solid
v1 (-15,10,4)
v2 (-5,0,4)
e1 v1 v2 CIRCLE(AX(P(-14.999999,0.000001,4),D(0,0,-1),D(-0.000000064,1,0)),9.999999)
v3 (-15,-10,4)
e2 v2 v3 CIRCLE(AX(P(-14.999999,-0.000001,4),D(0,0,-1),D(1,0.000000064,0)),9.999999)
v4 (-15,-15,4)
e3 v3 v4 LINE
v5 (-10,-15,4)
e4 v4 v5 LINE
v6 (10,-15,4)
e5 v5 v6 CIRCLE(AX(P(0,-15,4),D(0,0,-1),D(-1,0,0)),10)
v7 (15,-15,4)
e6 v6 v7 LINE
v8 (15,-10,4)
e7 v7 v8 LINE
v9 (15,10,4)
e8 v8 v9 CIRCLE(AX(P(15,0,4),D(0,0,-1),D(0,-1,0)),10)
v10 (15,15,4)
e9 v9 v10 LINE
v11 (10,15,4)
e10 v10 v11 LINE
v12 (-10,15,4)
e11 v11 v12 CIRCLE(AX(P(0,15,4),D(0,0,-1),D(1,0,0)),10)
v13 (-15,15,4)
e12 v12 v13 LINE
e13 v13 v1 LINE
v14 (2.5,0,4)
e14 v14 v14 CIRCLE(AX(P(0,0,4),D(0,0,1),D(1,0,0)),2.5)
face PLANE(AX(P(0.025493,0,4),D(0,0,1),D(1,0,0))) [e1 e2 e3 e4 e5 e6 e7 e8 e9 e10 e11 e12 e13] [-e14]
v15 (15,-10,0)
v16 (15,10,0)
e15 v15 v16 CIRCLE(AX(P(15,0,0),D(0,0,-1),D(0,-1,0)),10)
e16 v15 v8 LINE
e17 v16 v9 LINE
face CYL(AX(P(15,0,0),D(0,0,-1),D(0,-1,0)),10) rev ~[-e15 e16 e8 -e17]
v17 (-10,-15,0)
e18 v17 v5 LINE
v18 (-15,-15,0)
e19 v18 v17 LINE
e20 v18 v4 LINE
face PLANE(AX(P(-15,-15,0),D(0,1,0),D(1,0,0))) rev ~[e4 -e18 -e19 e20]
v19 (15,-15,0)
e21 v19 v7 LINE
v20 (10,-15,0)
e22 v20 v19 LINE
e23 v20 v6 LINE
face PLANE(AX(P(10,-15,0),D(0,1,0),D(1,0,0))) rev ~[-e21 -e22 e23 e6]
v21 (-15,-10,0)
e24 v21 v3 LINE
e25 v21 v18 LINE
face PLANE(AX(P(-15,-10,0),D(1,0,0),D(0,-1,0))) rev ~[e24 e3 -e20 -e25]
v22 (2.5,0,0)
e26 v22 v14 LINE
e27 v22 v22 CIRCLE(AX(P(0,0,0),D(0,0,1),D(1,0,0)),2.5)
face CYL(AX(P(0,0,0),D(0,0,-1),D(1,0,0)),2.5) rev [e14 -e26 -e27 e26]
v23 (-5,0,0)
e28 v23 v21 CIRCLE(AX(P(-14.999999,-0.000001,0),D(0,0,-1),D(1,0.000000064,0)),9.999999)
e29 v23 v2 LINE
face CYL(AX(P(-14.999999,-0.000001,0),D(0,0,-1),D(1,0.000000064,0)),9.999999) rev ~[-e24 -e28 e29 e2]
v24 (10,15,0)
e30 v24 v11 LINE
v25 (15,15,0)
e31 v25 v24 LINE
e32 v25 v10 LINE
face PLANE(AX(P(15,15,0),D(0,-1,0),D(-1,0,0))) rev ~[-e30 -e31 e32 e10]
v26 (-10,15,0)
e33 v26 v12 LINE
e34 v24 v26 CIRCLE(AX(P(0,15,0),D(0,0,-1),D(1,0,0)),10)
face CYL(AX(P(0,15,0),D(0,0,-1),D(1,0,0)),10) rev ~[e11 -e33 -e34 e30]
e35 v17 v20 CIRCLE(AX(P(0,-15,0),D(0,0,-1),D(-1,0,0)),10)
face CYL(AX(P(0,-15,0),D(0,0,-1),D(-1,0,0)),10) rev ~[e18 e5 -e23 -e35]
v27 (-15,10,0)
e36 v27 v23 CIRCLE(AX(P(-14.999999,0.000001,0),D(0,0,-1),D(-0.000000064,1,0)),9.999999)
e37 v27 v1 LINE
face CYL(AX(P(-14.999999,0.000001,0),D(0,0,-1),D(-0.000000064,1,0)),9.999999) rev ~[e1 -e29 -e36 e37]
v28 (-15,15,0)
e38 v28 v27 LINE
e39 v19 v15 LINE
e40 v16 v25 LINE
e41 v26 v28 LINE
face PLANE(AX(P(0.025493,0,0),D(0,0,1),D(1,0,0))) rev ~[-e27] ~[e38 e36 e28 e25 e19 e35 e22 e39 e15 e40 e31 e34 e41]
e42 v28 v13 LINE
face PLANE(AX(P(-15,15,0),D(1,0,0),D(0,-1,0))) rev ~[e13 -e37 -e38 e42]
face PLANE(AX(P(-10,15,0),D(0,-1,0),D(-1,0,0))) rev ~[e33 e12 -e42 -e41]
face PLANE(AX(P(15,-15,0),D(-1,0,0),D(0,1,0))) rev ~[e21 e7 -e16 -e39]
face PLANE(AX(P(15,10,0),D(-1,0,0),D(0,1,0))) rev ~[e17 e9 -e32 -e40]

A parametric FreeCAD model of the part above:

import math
import FreeCAD as App
import Part
import Sketcher
Q = App.Units.Quantity

doc = App.newDocument("Part")
body = doc.addObject("PartDesign::Body", "Body")

sketch1 = doc.addObject("Sketcher::SketchObject", "Sketch")
body.addObject(sketch1)
sketch1.AttachmentSupport = (doc.XY_Plane, [""])
sketch1.MapMode = "FlatFace"
sketch1.addGeometry(Part.LineSegment(App.Vector(15, 10, 0), App.Vector(15, 15, 0)), False)
sketch1.addGeometry(Part.LineSegment(App.Vector(15, 15, 0), App.Vector(10, 15, 0)), False)
sketch1.addGeometry(Part.ArcOfCircle(Part.Circle(App.Vector(0, 15, 0), App.Vector(0, 0, 1), 10), math.radians(180), math.radians(360)), False)
sketch1.addGeometry(Part.LineSegment(App.Vector(-10, 15, 0), App.Vector(-15, 15, 0)), False)
sketch1.addGeometry(Part.LineSegment(App.Vector(-15, 15, 0), App.Vector(-15, 10, 0)), False)
sketch1.addGeometry(Part.ArcOfCircle(Part.Circle(App.Vector(-15, 0, 0), App.Vector(0, 0, 1), 10), math.radians(0), math.radians(90)), False)
sketch1.addGeometry(Part.ArcOfCircle(Part.Circle(App.Vector(-15, 0, 0), App.Vector(0, 0, 1), 10), math.radians(-90), math.radians(0)), False)
sketch1.addGeometry(Part.LineSegment(App.Vector(-15, -10, 0), App.Vector(-15, -15, 0)), False)
sketch1.addGeometry(Part.LineSegment(App.Vector(-15, -15, 0), App.Vector(-10, -15, 0)), False)
sketch1.addGeometry(Part.ArcOfCircle(Part.Circle(App.Vector(0, -15, 0), App.Vector(0, 0, 1), 10), math.radians(0), math.radians(180)), False)
sketch1.addGeometry(Part.LineSegment(App.Vector(10, -15, 0), App.Vector(15, -15, 0)), False)
sketch1.addGeometry(Part.LineSegment(App.Vector(15, -15, 0), App.Vector(15, -10, 0)), False)
sketch1.addGeometry(Part.ArcOfCircle(Part.Circle(App.Vector(15, 0, 0), App.Vector(0, 0, 1), 10), math.radians(90), math.radians(270)), False)
sketch1.addGeometry(Part.Circle(App.Vector(0, 0, 0), App.Vector(0, 0, 1), 2.5), False)
sketch1.addConstraint(Sketcher.Constraint("Coincident", 0, 2, 1, 1))
sketch1.addConstraint(Sketcher.Constraint("Coincident", 1, 2, 2, 2))
sketch1.addConstraint(Sketcher.Constraint("Coincident", 2, 1, 3, 1))
sketch1.addConstraint(Sketcher.Constraint("Coincident", 3, 2, 4, 1))
sketch1.addConstraint(Sketcher.Constraint("Coincident", 4, 2, 5, 2))
sketch1.addConstraint(Sketcher.Constraint("Tangent", 5, 1, 6, 2))
sketch1.addConstraint(Sketcher.Constraint("Coincident", 6, 1, 7, 1))
sketch1.addConstraint(Sketcher.Constraint("Coincident", 7, 2, 8, 1))
sketch1.addConstraint(Sketcher.Constraint("Coincident", 8, 2, 9, 2))
sketch1.addConstraint(Sketcher.Constraint("Coincident", 9, 1, 10, 1))
sketch1.addConstraint(Sketcher.Constraint("Coincident", 10, 2, 11, 1))
sketch1.addConstraint(Sketcher.Constraint("Coincident", 11, 2, 12, 2))
sketch1.addConstraint(Sketcher.Constraint("Coincident", 12, 1, 0, 1))
sketch1.addConstraint(Sketcher.Constraint("Vertical", 0))
sketch1.addConstraint(Sketcher.Constraint("Horizontal", 1))
sketch1.addConstraint(Sketcher.Constraint("Horizontal", 3))
sketch1.addConstraint(Sketcher.Constraint("Vertical", 4))
sketch1.addConstraint(Sketcher.Constraint("Vertical", 7))
sketch1.addConstraint(Sketcher.Constraint("Horizontal", 8))
sketch1.addConstraint(Sketcher.Constraint("Horizontal", 10))
sketch1.addConstraint(Sketcher.Constraint("Vertical", 11))
sketch1.addConstraint(Sketcher.Constraint("Coincident", 13, 3, -1, 1))
sketch1.addConstraint(Sketcher.Constraint("Equal", 2, 5))
sketch1.addConstraint(Sketcher.Constraint("Equal", 5, 6))
sketch1.addConstraint(Sketcher.Constraint("Equal", 6, 9))
sketch1.addConstraint(Sketcher.Constraint("Equal", 9, 12))
sketch1.addConstraint(Sketcher.Constraint("Symmetric", 2, 3, 9, 3, -1, 1))
sketch1.addConstraint(Sketcher.Constraint("Symmetric", 5, 3, 12, 3, -1, 1))
sketch1.addConstraint(Sketcher.Constraint("Symmetric", 0, 2, 7, 2, -1, 1))
sketch1.addConstraint(Sketcher.Constraint("Symmetric", 3, 2, 10, 2, -1, 1))
sketch1.addConstraint(Sketcher.Constraint("Symmetric", 1, 2, 2, 1, -2))
sketch1.addConstraint(Sketcher.Constraint("Symmetric", 6, 1, 11, 2, -2))
sketch1.addConstraint(Sketcher.Constraint("PointOnObject", 5, 1, -1))
sketch1.addConstraint(Sketcher.Constraint("Horizontal", 2, 3, 0, 2))
sketch1.addConstraint(Sketcher.Constraint("Vertical", 12, 3, 0, 2))
sketch1.addConstraint(Sketcher.Constraint("Equal", 10, 0))
sketch1.addConstraint(Sketcher.Constraint("Diameter", 13, Q("5 mm")))
sketch1.addConstraint(Sketcher.Constraint("Radius", 2, Q("10 mm")))
sketch1.addConstraint(Sketcher.Constraint("DistanceX", 1, 2, 1, 1, Q("5 mm")))
pad1 = doc.addObject("PartDesign::Pad", "Pad")
body.addObject(pad1)
pad1.Profile = sketch1
pad1.Length = 4

doc.recompute()
